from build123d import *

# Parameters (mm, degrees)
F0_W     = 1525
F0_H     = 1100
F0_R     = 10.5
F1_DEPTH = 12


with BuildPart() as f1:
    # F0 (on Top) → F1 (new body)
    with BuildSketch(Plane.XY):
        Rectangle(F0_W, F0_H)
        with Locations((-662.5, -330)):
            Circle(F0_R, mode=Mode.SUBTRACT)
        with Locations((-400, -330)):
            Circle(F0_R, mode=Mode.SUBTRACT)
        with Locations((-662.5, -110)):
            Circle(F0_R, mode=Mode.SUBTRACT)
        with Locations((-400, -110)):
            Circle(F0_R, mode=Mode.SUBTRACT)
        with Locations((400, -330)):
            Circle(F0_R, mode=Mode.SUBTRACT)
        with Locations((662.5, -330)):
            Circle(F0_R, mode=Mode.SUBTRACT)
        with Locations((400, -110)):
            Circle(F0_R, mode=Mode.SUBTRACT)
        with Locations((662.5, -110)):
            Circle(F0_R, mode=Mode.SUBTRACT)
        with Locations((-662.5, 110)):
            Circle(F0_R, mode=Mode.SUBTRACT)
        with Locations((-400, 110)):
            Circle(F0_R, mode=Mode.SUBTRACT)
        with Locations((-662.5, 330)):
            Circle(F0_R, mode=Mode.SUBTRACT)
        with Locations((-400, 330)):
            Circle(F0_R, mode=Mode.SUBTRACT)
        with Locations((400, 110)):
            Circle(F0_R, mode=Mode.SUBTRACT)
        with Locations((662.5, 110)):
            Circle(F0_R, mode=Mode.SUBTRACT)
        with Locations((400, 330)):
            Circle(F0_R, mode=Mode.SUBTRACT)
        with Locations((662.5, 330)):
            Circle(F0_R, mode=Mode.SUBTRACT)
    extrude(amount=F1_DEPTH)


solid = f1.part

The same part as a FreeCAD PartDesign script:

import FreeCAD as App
import Part
import Sketcher

V = App.Vector
Q = App.Units.Quantity


def add_polygon(sketch, points):
    """Adds a closed chain of lines whose ends are joined by coincident constraints."""
    first, n = sketch.GeometryCount, len(points)
    for a, b in zip(points, points[1:] + points[:1]):
        sketch.addGeometry(Part.LineSegment(App.Vector(*a, 0), App.Vector(*b, 0)), False)
    for i in range(n):
        sketch.addConstraint(Sketcher.Constraint("Coincident", first + i, 2, first + (i + 1) % n, 1))

doc = App.newDocument("Part")
body = doc.addObject("PartDesign::Body", "Body")

# Sketch on XY plane
sketch1 = body.newObject("Sketcher::SketchObject", "Sketch")
sketch1.AttachmentSupport = (doc.getObject("XY_Plane"), [""])
sketch1.MapMode = "FlatFace"
add_polygon(sketch1, [(-762, 550), (-762, -550), (762, -550), (762, 550)])  # lines 0-3
sketch1.addGeometry(Part.Circle(V(-662, -330, 0), V(0, 0, 1), 10), False)  # 4
sketch1.addGeometry(Part.Circle(V(-400, -330, 0), V(0, 0, 1), 10), False)  # 5
sketch1.addGeometry(Part.Circle(V(-662, -110, 0), V(0, 0, 1), 10), False)  # 6
sketch1.addGeometry(Part.Circle(V(-400, -110, 0), V(0, 0, 1), 10), False)  # 7
sketch1.addGeometry(Part.Circle(V(400, -330, 0), V(0, 0, 1), 10), False)  # 8
sketch1.addGeometry(Part.Circle(V(662, -330, 0), V(0, 0, 1), 10), False)  # 9
sketch1.addGeometry(Part.Circle(V(400, -110, 0), V(0, 0, 1), 10), False)  # 10
sketch1.addGeometry(Part.Circle(V(662, -110, 0), V(0, 0, 1), 10), False)  # 11
sketch1.addGeometry(Part.Circle(V(-662, 110, 0), V(0, 0, 1), 10), False)  # 12
sketch1.addGeometry(Part.Circle(V(-400, 110, 0), V(0, 0, 1), 10), False)  # 13
sketch1.addGeometry(Part.Circle(V(-662, 330, 0), V(0, 0, 1), 10), False)  # 14
sketch1.addGeometry(Part.Circle(V(-400, 330, 0), V(0, 0, 1), 10), False)  # 15
sketch1.addGeometry(Part.Circle(V(400, 110, 0), V(0, 0, 1), 10), False)  # 16
sketch1.addGeometry(Part.Circle(V(662, 110, 0), V(0, 0, 1), 10), False)  # 17
sketch1.addGeometry(Part.Circle(V(400, 330, 0), V(0, 0, 1), 10), False)  # 18
sketch1.addGeometry(Part.Circle(V(662, 330, 0), V(0, 0, 1), 10), False)  # 19
sketch1.addConstraint([
    Sketcher.Constraint("Vertical", 0),
    Sketcher.Constraint("Horizontal", 1),
    Sketcher.Constraint("Vertical", 2),
    Sketcher.Constraint("Horizontal", 3),
    Sketcher.Constraint("Equal", 4, 5),
    Sketcher.Constraint("Equal", 5, 6),
    Sketcher.Constraint("Equal", 6, 7),
    Sketcher.Constraint("Equal", 7, 8),
    Sketcher.Constraint("Equal", 8, 9),
    Sketcher.Constraint("Equal", 9, 10),
    Sketcher.Constraint("Equal", 10, 11),
    Sketcher.Constraint("Equal", 11, 12),
    Sketcher.Constraint("Equal", 12, 13),
    Sketcher.Constraint("Equal", 13, 14),
    Sketcher.Constraint("Equal", 14, 15),
    Sketcher.Constraint("Equal", 15, 16),
    Sketcher.Constraint("Equal", 16, 17),
    Sketcher.Constraint("Equal", 17, 18),
    Sketcher.Constraint("Equal", 18, 19),
    Sketcher.Constraint("Symmetric", 11, 3, 12, 3, -1, 1),
    Sketcher.Constraint("Symmetric", 10, 3, 13, 3, -1, 1),
    Sketcher.Constraint("Symmetric", 9, 3, 14, 3, -1, 1),
    Sketcher.Constraint("Symmetric", 8, 3, 15, 3, -1, 1),
    Sketcher.Constraint("Symmetric", 7, 3, 16, 3, -1, 1),
    Sketcher.Constraint("Symmetric", 6, 3, 17, 3, -1, 1),
    Sketcher.Constraint("Symmetric", 5, 3, 18, 3, -1, 1),
    Sketcher.Constraint("Symmetric", 4, 3, 19, 3, -1, 1),
    Sketcher.Constraint("Symmetric", 0, 2, 2, 2, -1, 1),
    Sketcher.Constraint("Symmetric", 5, 3, 8, 3, -2),
    Sketcher.Constraint("Symmetric", 4, 3, 9, 3, -2),
    Sketcher.Constraint("Symmetric", 7, 3, 10, 3, -2),
    Sketcher.Constraint("Symmetric", 6, 3, 11, 3, -2),
    Sketcher.Constraint("Horizontal", 4, 3, 5, 3),
    Sketcher.Constraint("Horizontal", 6, 3, 7, 3),
    Sketcher.Constraint("Vertical", 4, 3, 6, 3),
    Sketcher.Constraint("Vertical", 5, 3, 7, 3),
    Sketcher.Constraint("Diameter", 4, Q("21 mm")),
    Sketcher.Constraint("DistanceX", 1, 1, 1, 2, Q("1525 mm")),
    Sketcher.Constraint("DistanceY", 0, 2, 0, 1, Q("1100 mm")),
    Sketcher.Constraint("DistanceY", 4, 3, -1, 1, Q("330 mm")),
    Sketcher.Constraint("DistanceX", 5, 3, -1, 1, Q("400 mm")),
    Sketcher.Constraint("DistanceY", 6, 3, -1, 1, Q("110 mm")),
    Sketcher.Constraint("DistanceX", 4, 3, 9, 3, Q("1325 mm")),
])
pad1 = body.newObject("PartDesign::Pad", "Pad")
pad1.Profile = sketch1
pad1.Length = 12

doc.recompute()
